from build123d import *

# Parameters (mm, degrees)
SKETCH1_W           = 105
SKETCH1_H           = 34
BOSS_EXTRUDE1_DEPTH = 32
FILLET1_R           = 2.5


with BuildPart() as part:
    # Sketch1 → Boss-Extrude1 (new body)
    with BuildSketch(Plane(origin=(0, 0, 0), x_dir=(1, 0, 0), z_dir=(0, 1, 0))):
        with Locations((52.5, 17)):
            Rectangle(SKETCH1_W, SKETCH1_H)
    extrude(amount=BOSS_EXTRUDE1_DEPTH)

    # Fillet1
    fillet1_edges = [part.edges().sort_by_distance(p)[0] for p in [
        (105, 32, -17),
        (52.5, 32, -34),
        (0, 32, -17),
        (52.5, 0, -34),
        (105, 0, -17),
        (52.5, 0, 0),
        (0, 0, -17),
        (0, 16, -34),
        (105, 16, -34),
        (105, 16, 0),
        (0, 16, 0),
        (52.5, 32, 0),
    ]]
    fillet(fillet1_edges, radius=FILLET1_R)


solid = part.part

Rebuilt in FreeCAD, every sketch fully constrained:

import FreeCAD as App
import Part
import Sketcher


def add_polygon(sketch, points):
    """Adds a closed chain of lines whose ends are joined by coincident constraints."""
    first, n = sketch.GeometryCount, len(points)
    for a, b in zip(points, points[1:] + points[:1]):
        sketch.addGeometry(Part.LineSegment(App.Vector(*a, 0), App.Vector(*b, 0)), False)
    for i in range(n):
        sketch.addConstraint(Sketcher.Constraint("Coincident", first + i, 2, first + (i + 1) % n, 1))

doc = App.newDocument("Part")
body = doc.addObject("PartDesign::Body", "Body")

# Sketch on XZ plane
sketch1 = body.newObject("Sketcher::SketchObject", "Sketch")
sketch1.AttachmentSupport = (doc.getObject("XZ_Plane"), [""])
sketch1.MapMode = "FlatFace"
add_polygon(sketch1, [(0, -34), (0, 0), (105, 0), (105, -34)])  # lines 0-3
sketch1.addConstraint([
    Sketcher.Constraint("Vertical", 0),
    Sketcher.Constraint("Horizontal", 1),
    Sketcher.Constraint("Vertical", 2),
    Sketcher.Constraint("Horizontal", 3),
    Sketcher.Constraint("Coincident", 0, 2, -1, 1),
    Sketcher.Constraint("DistanceX", 1, 1, 1, 2, 105.0),
    Sketcher.Constraint("DistanceY", 0, 1, 0, 2, 34.0),
])
pad1 = body.newObject("PartDesign::Pad", "Pad")
pad1.Profile = sketch1
pad1.Length = 32
pad1.Reversed = True
doc.recompute()

fillet = body.newObject("PartDesign::Fillet", "Fillet")
fillet.Base = (pad1, ["Edge1"])
fillet.UseAllEdges = True
fillet.Radius = 2.5

doc.recompute()
